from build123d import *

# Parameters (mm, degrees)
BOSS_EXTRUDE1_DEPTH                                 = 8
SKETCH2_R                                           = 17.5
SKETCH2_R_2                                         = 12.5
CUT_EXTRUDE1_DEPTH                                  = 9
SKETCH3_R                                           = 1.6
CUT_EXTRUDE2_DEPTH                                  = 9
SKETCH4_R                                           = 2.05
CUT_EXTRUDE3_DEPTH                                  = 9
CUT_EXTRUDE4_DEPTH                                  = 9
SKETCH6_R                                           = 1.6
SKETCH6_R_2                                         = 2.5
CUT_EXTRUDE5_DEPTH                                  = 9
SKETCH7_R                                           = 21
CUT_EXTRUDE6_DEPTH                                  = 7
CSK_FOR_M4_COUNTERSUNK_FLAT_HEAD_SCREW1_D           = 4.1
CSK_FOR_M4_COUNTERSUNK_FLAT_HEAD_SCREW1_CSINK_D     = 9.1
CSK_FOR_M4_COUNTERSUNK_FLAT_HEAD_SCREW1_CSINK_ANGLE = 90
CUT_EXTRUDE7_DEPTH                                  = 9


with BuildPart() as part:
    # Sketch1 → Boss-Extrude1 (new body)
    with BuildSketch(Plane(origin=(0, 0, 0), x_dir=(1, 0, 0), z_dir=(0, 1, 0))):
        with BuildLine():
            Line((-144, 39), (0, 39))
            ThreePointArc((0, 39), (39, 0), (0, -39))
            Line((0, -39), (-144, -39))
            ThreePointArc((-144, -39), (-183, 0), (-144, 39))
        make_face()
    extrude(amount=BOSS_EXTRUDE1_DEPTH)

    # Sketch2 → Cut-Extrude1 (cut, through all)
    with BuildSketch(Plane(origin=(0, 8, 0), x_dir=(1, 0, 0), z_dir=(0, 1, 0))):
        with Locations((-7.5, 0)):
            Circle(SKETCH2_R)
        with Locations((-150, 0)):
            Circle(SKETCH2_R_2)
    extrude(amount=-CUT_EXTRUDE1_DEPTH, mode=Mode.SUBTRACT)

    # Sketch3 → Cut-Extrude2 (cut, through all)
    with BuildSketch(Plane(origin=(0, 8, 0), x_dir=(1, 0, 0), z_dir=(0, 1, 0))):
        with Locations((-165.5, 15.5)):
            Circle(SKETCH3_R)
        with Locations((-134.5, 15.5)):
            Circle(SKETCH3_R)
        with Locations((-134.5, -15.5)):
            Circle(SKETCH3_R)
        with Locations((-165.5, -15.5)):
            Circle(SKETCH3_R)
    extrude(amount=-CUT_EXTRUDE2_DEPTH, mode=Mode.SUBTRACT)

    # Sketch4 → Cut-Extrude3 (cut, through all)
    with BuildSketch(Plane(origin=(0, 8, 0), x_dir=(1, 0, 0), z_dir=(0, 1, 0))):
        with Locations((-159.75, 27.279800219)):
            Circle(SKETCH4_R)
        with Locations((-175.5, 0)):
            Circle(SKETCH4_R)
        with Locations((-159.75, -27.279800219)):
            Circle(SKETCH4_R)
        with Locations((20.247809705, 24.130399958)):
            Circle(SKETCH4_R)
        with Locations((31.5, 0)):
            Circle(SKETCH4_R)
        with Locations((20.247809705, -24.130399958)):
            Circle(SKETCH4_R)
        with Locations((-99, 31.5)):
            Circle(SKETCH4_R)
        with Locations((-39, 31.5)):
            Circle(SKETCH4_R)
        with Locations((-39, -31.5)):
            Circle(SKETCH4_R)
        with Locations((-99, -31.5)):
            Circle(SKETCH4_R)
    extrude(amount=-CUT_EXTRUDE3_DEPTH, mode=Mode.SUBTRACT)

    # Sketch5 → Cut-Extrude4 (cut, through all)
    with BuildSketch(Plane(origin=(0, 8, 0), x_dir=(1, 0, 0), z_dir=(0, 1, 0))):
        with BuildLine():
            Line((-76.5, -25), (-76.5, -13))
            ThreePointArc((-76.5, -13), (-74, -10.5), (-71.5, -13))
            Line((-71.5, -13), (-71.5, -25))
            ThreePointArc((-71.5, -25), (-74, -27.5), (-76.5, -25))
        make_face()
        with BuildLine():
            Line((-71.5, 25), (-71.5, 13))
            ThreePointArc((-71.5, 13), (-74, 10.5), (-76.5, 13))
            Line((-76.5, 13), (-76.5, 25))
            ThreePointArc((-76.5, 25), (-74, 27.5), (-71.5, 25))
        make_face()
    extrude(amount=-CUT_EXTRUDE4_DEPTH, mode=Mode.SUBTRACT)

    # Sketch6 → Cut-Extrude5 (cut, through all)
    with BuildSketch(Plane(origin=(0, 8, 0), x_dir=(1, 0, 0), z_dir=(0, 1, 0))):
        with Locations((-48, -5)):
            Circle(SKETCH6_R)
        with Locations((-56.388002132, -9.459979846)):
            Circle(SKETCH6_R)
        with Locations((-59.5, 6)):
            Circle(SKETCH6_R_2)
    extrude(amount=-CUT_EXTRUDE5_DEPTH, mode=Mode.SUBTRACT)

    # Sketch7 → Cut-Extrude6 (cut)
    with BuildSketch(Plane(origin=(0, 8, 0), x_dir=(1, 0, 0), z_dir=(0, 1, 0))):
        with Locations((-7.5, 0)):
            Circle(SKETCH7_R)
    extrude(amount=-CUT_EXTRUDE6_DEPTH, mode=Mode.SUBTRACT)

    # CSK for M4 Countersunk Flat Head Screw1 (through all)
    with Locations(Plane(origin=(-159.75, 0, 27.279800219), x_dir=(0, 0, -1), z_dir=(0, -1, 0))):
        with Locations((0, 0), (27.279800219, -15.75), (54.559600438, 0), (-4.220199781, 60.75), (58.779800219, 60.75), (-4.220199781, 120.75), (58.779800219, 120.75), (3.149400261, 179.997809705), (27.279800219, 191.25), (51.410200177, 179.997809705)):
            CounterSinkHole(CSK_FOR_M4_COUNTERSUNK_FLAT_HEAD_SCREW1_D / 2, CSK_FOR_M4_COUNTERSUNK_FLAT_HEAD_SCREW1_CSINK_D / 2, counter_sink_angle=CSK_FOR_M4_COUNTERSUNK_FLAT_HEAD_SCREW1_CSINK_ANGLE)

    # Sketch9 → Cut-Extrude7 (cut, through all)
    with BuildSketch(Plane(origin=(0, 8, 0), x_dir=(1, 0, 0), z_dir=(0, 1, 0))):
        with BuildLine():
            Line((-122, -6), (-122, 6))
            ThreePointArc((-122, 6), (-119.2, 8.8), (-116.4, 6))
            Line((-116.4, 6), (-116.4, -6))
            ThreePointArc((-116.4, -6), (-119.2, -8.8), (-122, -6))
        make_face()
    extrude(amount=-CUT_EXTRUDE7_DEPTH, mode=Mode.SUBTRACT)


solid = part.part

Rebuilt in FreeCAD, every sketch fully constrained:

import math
import FreeCAD as App
import Part
import Sketcher

doc = App.newDocument("Part")
body = doc.addObject("PartDesign::Body", "Body")

sketch1 = body.newObject("Sketcher::SketchObject", "Sketch")
sketch1.AttachmentSupport = (doc.getObject("XZ_Plane"), [""])
sketch1.MapMode = "FlatFace"
sketch1.addGeometry([
    Part.LineSegment(App.Vector(0, -39, 0), App.Vector(-144, -39, 0)),
    Part.ArcOfCircle(Part.Circle(App.Vector(-144, 0, 0), App.Vector(0, 0, 1), 39), math.radians(90), math.radians(270)),
    Part.LineSegment(App.Vector(-144, 39, 0), App.Vector(0, 39, 0)),
    Part.ArcOfCircle(Part.Circle(App.Vector(0, 0, 0), App.Vector(0, 0, 1), 39), math.radians(-90), math.radians(90)),
], False)
sketch1.addConstraint([
    Sketcher.Constraint("Tangent", 0, 2, 1, 2),
    Sketcher.Constraint("Tangent", 1, 1, 2, 1),
    Sketcher.Constraint("Tangent", 2, 2, 3, 2),
    Sketcher.Constraint("Tangent", 3, 1, 0, 1),
    Sketcher.Constraint("Horizontal", 0),
    Sketcher.Constraint("Horizontal", 2),
    Sketcher.Constraint("Coincident", 3, 3, -1, 1),
    Sketcher.Constraint("Radius", 1, 39.0),
    Sketcher.Constraint("DistanceX", 0, 2, 0, 1, 144.0),
])
pad1 = body.newObject("PartDesign::Pad", "Pad")
pad1.Profile = sketch1
pad1.Length = 8
pad1.Reversed = True

sketch2 = body.newObject("Sketcher::SketchObject", "Sketch001")
sketch2.AttachmentSupport = (doc.getObject("XZ_Plane"), [""])
sketch2.MapMode = "FlatFace"
sketch2.AttachmentOffset = App.Placement(App.Vector(0, 0, -8), App.Rotation())
sketch2.addGeometry([
    Part.Circle(App.Vector(-8, 0, 0), App.Vector(0, 0, 1), 18),
    Part.Circle(App.Vector(-150, 0, 0), App.Vector(0, 0, 1), 12),
], False)
sketch2.addConstraint([
    Sketcher.Constraint("PointOnObject", 0, 3, -1),
    Sketcher.Constraint("PointOnObject", 1, 3, -1),
    Sketcher.Constraint("Diameter", 0, 35.0),
    Sketcher.Constraint("Diameter", 1, 25.0),
    Sketcher.Constraint("DistanceX", 1, 3, -1, 1, 150.0),
    Sketcher.Constraint("DistanceX", 0, 3, -1, 1, 7.5),
])
pocket1 = body.newObject("PartDesign::Pocket", "Pocket")
pocket1.Profile = sketch2
pocket1.Type = "ThroughAll"
pocket1.Reversed = True

sketch3 = body.newObject("Sketcher::SketchObject", "Sketch002")
sketch3.AttachmentSupport = (doc.getObject("XZ_Plane"), [""])
sketch3.MapMode = "FlatFace"
sketch3.AttachmentOffset = App.Placement(App.Vector(0, 0, -8), App.Rotation())
sketch3.addGeometry([
    Part.Circle(App.Vector(-165.5, -15.5, 0), App.Vector(0, 0, 1), 1.6),
    Part.Circle(App.Vector(-134.5, -15.5, 0), App.Vector(0, 0, 1), 1.6),
    Part.Circle(App.Vector(-134.5, 15.5, 0), App.Vector(0, 0, 1), 1.6),
    Part.Circle(App.Vector(-165.5, 15.5, 0), App.Vector(0, 0, 1), 1.6),
], False)
sketch3.addConstraint([
    Sketcher.Constraint("Equal", 0, 1),
    Sketcher.Constraint("Equal", 1, 2),
    Sketcher.Constraint("Equal", 2, 3),
    Sketcher.Constraint("Symmetric", 1, 3, 2, 3, -1),
    Sketcher.Constraint("Symmetric", 0, 3, 3, 3, -1),
    Sketcher.Constraint("Horizontal", 0, 3, 1, 3),
    Sketcher.Constraint("Diameter", 0, 3.2),
    Sketcher.Constraint("DistanceX", 0, 3, 1, 3, 31.0),
    Sketcher.Constraint("DistanceY", 1, 3, 2, 3, 31.0),
    Sketcher.Constraint("DistanceX", 0, 3, -1, 1, 165.5),
])
pocket2 = body.newObject("PartDesign::Pocket", "Pocket001")
pocket2.Profile = sketch3
pocket2.Type = "ThroughAll"
pocket2.Reversed = True

sketch4 = body.newObject("Sketcher::SketchObject", "Sketch003")
sketch4.AttachmentSupport = (doc.getObject("XZ_Plane"), [""])
sketch4.MapMode = "FlatFace"
sketch4.AttachmentOffset = App.Placement(App.Vector(0, 0, -8), App.Rotation())
sketch4.addGeometry([
    Part.Circle(App.Vector(-159.8, -27.3, 0), App.Vector(0, 0, 1), 2),
    Part.Circle(App.Vector(-175.5, 0, 0), App.Vector(0, 0, 1), 2),
    Part.Circle(App.Vector(-159.8, 27.3, 0), App.Vector(0, 0, 1), 2),
    Part.Circle(App.Vector(20.2, -24.1, 0), App.Vector(0, 0, 1), 2),
    Part.Circle(App.Vector(31.5, 0, 0), App.Vector(0, 0, 1), 2),
    Part.Circle(App.Vector(20.2, 24.1, 0), App.Vector(0, 0, 1), 2),
    Part.Circle(App.Vector(-99, -31.5, 0), App.Vector(0, 0, 1), 2),
    Part.Circle(App.Vector(-39, -31.5, 0), App.Vector(0, 0, 1), 2),
    Part.Circle(App.Vector(-39, 31.5, 0), App.Vector(0, 0, 1), 2),
    Part.Circle(App.Vector(-99, 31.5, 0), App.Vector(0, 0, 1), 2),
], False)
sketch4.addConstraint([
    Sketcher.Constraint("Equal", 0, 1),
    Sketcher.Constraint("Equal", 1, 2),
    Sketcher.Constraint("Equal", 2, 3),
    Sketcher.Constraint("Equal", 3, 4),
    Sketcher.Constraint("Equal", 4, 5),
    Sketcher.Constraint("Equal", 5, 6),
    Sketcher.Constraint("Equal", 6, 7),
    Sketcher.Constraint("Equal", 7, 8),
    Sketcher.Constraint("Equal", 8, 9),
    Sketcher.Constraint("Symmetric", 0, 3, 2, 3, -1),
    Sketcher.Constraint("Symmetric", 3, 3, 5, 3, -1),
    Sketcher.Constraint("Symmetric", 7, 3, 8, 3, -1),
    Sketcher.Constraint("Symmetric", 6, 3, 9, 3, -1),
    Sketcher.Constraint("PointOnObject", 1, 3, -1),
    Sketcher.Constraint("PointOnObject", 4, 3, -1),
    Sketcher.Constraint("Horizontal", 6, 3, 7, 3),
    Sketcher.Constraint("Diameter", 0, 4.1),
    Sketcher.Constraint("DistanceX", 6, 3, -1, 1, 99.0),
    Sketcher.Constraint("DistanceX", 7, 3, -1, 1, 39.0),
    Sketcher.Constraint("DistanceX", 1, 3, 4, 3, 207.0),
    Sketcher.Constraint("DistanceY", 7, 3, 8, 3, 63.0),
    Sketcher.Constraint("DistanceX", 1, 3, -1, 1, 175.5),
    Sketcher.Constraint("DistanceX", 0, 3, -1, 1, 159.75),
    Sketcher.Constraint("DistanceY", 0, 3, -1, 1, 27.2798),
    Sketcher.Constraint("DistanceY", 3, 3, -1, 1, 24.1304),
    Sketcher.Constraint("DistanceX", -1, 1, 3, 3, 20.24781),
])
pocket3 = body.newObject("PartDesign::Pocket", "Pocket002")
pocket3.Profile = sketch4
pocket3.Type = "ThroughAll"
pocket3.Reversed = True

sketch5 = body.newObject("Sketcher::SketchObject", "Sketch004")
sketch5.AttachmentSupport = (doc.getObject("XZ_Plane"), [""])
sketch5.MapMode = "FlatFace"
sketch5.AttachmentOffset = App.Placement(App.Vector(0, 0, -8), App.Rotation())
sketch5.addGeometry([
    Part.LineSegment(App.Vector(-76.5, 13, 0), App.Vector(-76.5, 25, 0)),
    Part.ArcOfCircle(Part.Circle(App.Vector(-74, 25, 0), App.Vector(0, 0, 1), 2.5), math.radians(0), math.radians(180)),
    Part.LineSegment(App.Vector(-71.5, 25, 0), App.Vector(-71.5, 13, 0)),
    Part.ArcOfCircle(Part.Circle(App.Vector(-74, 13, 0), App.Vector(0, 0, 1), 2.5), math.radians(180), math.radians(360)),
    Part.LineSegment(App.Vector(-71.5, -13, 0), App.Vector(-71.5, -25, 0)),
    Part.ArcOfCircle(Part.Circle(App.Vector(-74, -25, 0), App.Vector(0, 0, 1), 2.5), math.radians(180), math.radians(360)),
    Part.LineSegment(App.Vector(-76.5, -25, 0), App.Vector(-76.5, -13, 0)),
    Part.ArcOfCircle(Part.Circle(App.Vector(-74, -13, 0), App.Vector(0, 0, 1), 2.5), math.radians(0), math.radians(180)),
], False)
sketch5.addConstraint([
    Sketcher.Constraint("Tangent", 0, 2, 1, 2),
    Sketcher.Constraint("Tangent", 1, 1, 2, 1),
    Sketcher.Constraint("Tangent", 2, 2, 3, 2),
    Sketcher.Constraint("Tangent", 3, 1, 0, 1),
    Sketcher.Constraint("Tangent", 4, 2, 5, 2),
    Sketcher.Constraint("Tangent", 5, 1, 6, 1),
    Sketcher.Constraint("Tangent", 6, 2, 7, 2),
    Sketcher.Constraint("Tangent", 7, 1, 4, 1),
    Sketcher.Constraint("Vertical", 0),
    Sketcher.Constraint("Vertical", 2),
    Sketcher.Constraint("Vertical", 4),
    Sketcher.Constraint("Vertical", 6),
    Sketcher.Constraint("Equal", 3, 5),
    Sketcher.Constraint("Symmetric", 1, 3, 5, 3, -1),
    Sketcher.Constraint("Equal", 2, 4),
    Sketcher.Constraint("Radius", 1, 2.5),
    Sketcher.Constraint("DistanceY", 0, 1, 0, 2, 12.0),
    Sketcher.Constraint("DistanceX", 1, 3, -1, 1, 74.0),
    Sketcher.Constraint("DistanceY", -1, 1, 1, 3, 25.0),
])
pocket4 = body.newObject("PartDesign::Pocket", "Pocket003")
pocket4.Profile = sketch5
pocket4.Type = "ThroughAll"
pocket4.Reversed = True

sketch6 = body.newObject("Sketcher::SketchObject", "Sketch005")
sketch6.AttachmentSupport = (doc.getObject("XZ_Plane"), [""])
sketch6.MapMode = "FlatFace"
sketch6.AttachmentOffset = App.Placement(App.Vector(0, 0, -8), App.Rotation())
sketch6.addGeometry([
    Part.Circle(App.Vector(-48, 5, 0), App.Vector(0, 0, 1), 1.6),
    Part.Circle(App.Vector(-56.4, 9.5, 0), App.Vector(0, 0, 1), 1.6),
    Part.Circle(App.Vector(-59.5, -6, 0), App.Vector(0, 0, 1), 2.5),
], False)
sketch6.addConstraint([
    Sketcher.Constraint("Equal", 0, 1),
    Sketcher.Constraint("Diameter", 2, 5.0),
    Sketcher.Constraint("Diameter", 0, 3.2),
    Sketcher.Constraint("DistanceX", 0, 3, -1, 1, 48.0),
    Sketcher.Constraint("DistanceY", -1, 1, 0, 3, 5.0),
    Sketcher.Constraint("DistanceY", 2, 3, -1, 1, 6.0),
    Sketcher.Constraint("DistanceX", 2, 3, -1, 1, 59.5),
    Sketcher.Constraint("DistanceY", -1, 1, 1, 3, 9.45998),
    Sketcher.Constraint("DistanceX", 1, 3, -1, 1, 56.388002),
])
pocket5 = body.newObject("PartDesign::Pocket", "Pocket004")
pocket5.Profile = sketch6
pocket5.Type = "ThroughAll"
pocket5.Reversed = True

sketch7 = body.newObject("Sketcher::SketchObject", "Sketch006")
sketch7.AttachmentSupport = (doc.getObject("XZ_Plane"), [""])
sketch7.MapMode = "FlatFace"
sketch7.AttachmentOffset = App.Placement(App.Vector(0, 0, -8), App.Rotation())
sketch7.addGeometry(Part.Circle(App.Vector(-8, 0, 0), App.Vector(0, 0, 1), 21), False)
sketch7.addConstraint([
    Sketcher.Constraint("PointOnObject", 0, 3, -1),
    Sketcher.Constraint("Diameter", 0, 42.0),
    Sketcher.Constraint("DistanceX", 0, 3, -1, 1, 7.5),
])
pocket6 = body.newObject("PartDesign::Pocket", "Pocket005")
pocket6.Profile = sketch7
pocket6.Length = 7
pocket6.Reversed = True

sketch8 = body.newObject("Sketcher::SketchObject", "Sketch007")
sketch8.AttachmentSupport = (doc.getObject("XZ_Plane"), [""])
sketch8.MapMode = "FlatFace"
sketch8.addGeometry([
    Part.Circle(App.Vector(-159.8, 27.3, 0), App.Vector(0, 0, 1), 2),
    Part.Circle(App.Vector(-175.5, 0, 0), App.Vector(0, 0, 1), 2),
    Part.Circle(App.Vector(-159.8, -27.3, 0), App.Vector(0, 0, 1), 2),
    Part.Circle(App.Vector(-99, 31.5, 0), App.Vector(0, 0, 1), 2),
    Part.Circle(App.Vector(-99, -31.5, 0), App.Vector(0, 0, 1), 2),
    Part.Circle(App.Vector(-39, 31.5, 0), App.Vector(0, 0, 1), 2),
    Part.Circle(App.Vector(-39, -31.5, 0), App.Vector(0, 0, 1), 2),
    Part.Circle(App.Vector(20.2, 24.1, 0), App.Vector(0, 0, 1), 2),
    Part.Circle(App.Vector(31.5, 0, 0), App.Vector(0, 0, 1), 2),
    Part.Circle(App.Vector(20.2, -24.1, 0), App.Vector(0, 0, 1), 2),
], False)
sketch8.addConstraint([
    Sketcher.Constraint("Equal", 0, 1),
    Sketcher.Constraint("Equal", 1, 2),
    Sketcher.Constraint("Equal", 2, 3),
    Sketcher.Constraint("Equal", 3, 4),
    Sketcher.Constraint("Equal", 4, 5),
    Sketcher.Constraint("Equal", 5, 6),
    Sketcher.Constraint("Equal", 6, 7),
    Sketcher.Constraint("Equal", 7, 8),
    Sketcher.Constraint("Equal", 8, 9),
    Sketcher.Constraint("Symmetric", 0, 3, 2, 3, -1),
    Sketcher.Constraint("Symmetric", 3, 3, 4, 3, -1),
    Sketcher.Constraint("Symmetric", 5, 3, 6, 3, -1),
    Sketcher.Constraint("Symmetric", 7, 3, 9, 3, -1),
    Sketcher.Constraint("PointOnObject", 1, 3, -1),
    Sketcher.Constraint("PointOnObject", 8, 3, -1),
    Sketcher.Constraint("Horizontal", 3, 3, 5, 3),
    Sketcher.Constraint("Diameter", 0, 4.1),
    Sketcher.Constraint("DistanceX", 3, 3, -1, 1, 99.0),
    Sketcher.Constraint("DistanceX", 5, 3, -1, 1, 39.0),
    Sketcher.Constraint("DistanceY", 4, 3, 3, 3, 63.0),
    Sketcher.Constraint("DistanceX", 1, 3, -1, 1, 175.5),
    Sketcher.Constraint("DistanceX", -1, 1, 8, 3, 31.5),
    Sketcher.Constraint("DistanceX", 0, 3, -1, 1, 159.75),
    Sketcher.Constraint("DistanceY", -1, 1, 0, 3, 27.2798),
    Sketcher.Constraint("DistanceY", -1, 1, 7, 3, 24.1304),
    Sketcher.Constraint("DistanceX", -1, 1, 7, 3, 20.24781),
])
doc.recompute()
hole = body.newObject("PartDesign::Hole", "Hole")
hole.Profile = sketch8
hole.ThreadType = "None"
hole.Diameter = 4.1
hole.DepthType = "ThroughAll"
hole.HoleCutType = "Countersink"
hole.HoleCutDiameter = 9.1
hole.HoleCutCountersinkAngle = 90

sketch9 = body.newObject("Sketcher::SketchObject", "Sketch008")
sketch9.AttachmentSupport = (doc.getObject("XZ_Plane"), [""])
sketch9.MapMode = "FlatFace"
sketch9.AttachmentOffset = App.Placement(App.Vector(0, 0, -8), App.Rotation())
sketch9.addGeometry([
    Part.LineSegment(App.Vector(-122, -6, 0), App.Vector(-122, 6, 0)),
    Part.ArcOfCircle(Part.Circle(App.Vector(-119.2, 6, 0), App.Vector(0, 0, 1), 2.8), math.radians(0), math.radians(180)),
    Part.LineSegment(App.Vector(-116.4, 6, 0), App.Vector(-116.4, -6, 0)),
    Part.ArcOfCircle(Part.Circle(App.Vector(-119.2, -6, 0), App.Vector(0, 0, 1), 2.8), math.radians(180), math.radians(360)),
], False)
sketch9.addConstraint([
    Sketcher.Constraint("Tangent", 0, 2, 1, 2),
    Sketcher.Constraint("Tangent", 1, 1, 2, 1),
    Sketcher.Constraint("Tangent", 2, 2, 3, 2),
    Sketcher.Constraint("Tangent", 3, 1, 0, 1),
    Sketcher.Constraint("Vertical", 0),
    Sketcher.Constraint("Vertical", 2),
    Sketcher.Constraint("Radius", 1, 2.8),
    Sketcher.Constraint("DistanceY", 0, 1, 0, 2, 12.0),
    Sketcher.Constraint("DistanceY", -1, 1, 1, 3, 6.0),
    Sketcher.Constraint("DistanceX", 0, 2, -1, 1, 122.0),
])
pocket7 = body.newObject("PartDesign::Pocket", "Pocket006")
pocket7.Profile = sketch9
pocket7.Type = "ThroughAll"
pocket7.Reversed = True

doc.recompute()
